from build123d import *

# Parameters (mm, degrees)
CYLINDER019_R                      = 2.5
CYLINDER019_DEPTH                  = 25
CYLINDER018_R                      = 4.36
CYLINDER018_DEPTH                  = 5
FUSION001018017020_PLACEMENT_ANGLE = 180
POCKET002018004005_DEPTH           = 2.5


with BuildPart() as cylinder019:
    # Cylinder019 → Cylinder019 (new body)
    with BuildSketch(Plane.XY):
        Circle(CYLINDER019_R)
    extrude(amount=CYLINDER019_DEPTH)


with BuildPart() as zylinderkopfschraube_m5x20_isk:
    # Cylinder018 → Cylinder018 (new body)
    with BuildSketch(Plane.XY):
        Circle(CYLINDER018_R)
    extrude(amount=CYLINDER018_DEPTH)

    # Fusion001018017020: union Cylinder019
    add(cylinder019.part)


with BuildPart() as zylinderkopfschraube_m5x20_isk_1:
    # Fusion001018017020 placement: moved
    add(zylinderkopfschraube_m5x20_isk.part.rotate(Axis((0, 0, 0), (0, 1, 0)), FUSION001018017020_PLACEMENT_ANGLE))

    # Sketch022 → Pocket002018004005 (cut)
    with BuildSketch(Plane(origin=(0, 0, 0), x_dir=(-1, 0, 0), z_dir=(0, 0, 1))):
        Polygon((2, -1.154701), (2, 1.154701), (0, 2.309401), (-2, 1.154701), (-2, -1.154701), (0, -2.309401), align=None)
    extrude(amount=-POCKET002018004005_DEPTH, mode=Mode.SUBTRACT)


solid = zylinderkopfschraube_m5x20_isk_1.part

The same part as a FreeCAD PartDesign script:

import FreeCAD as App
import Part
import Sketcher

V = App.Vector
Q = App.Units.Quantity


def add_polygon(sketch, points):
    """Adds a closed chain of lines whose ends are joined by coincident constraints."""
    first, n = sketch.GeometryCount, len(points)
    for a, b in zip(points, points[1:] + points[:1]):
        sketch.addGeometry(Part.LineSegment(App.Vector(*a, 0), App.Vector(*b, 0)), False)
    for i in range(n):
        sketch.addConstraint(Sketcher.Constraint("Coincident", first + i, 2, first + (i + 1) % n, 1))

doc = App.newDocument("Part")
params = doc.addObject("Spreadsheet::Sheet", "Params")
for row, (alias, value) in enumerate([
    ("sketch1_diameter", "5 mm"),
    ("pad1_length", "25 mm"),
    ("sketch2_diameter", "8.72 mm"),
    ("pad2_length", "5 mm"),
    ("pocket1_length", "2.5 mm"),
], start=1):
    params.set(f"A{row}", alias)
    params.set(f"B{row}", "=" + value)
    params.setAlias(f"B{row}", alias)

body = doc.addObject("PartDesign::Body", "Body")

# Sketch on XY plane
sketch1 = body.newObject("Sketcher::SketchObject", "Sketch")
sketch1.AttachmentSupport = (doc.getObject("XY_Plane"), [""])
sketch1.MapMode = "FlatFace"
sketch1.addGeometry(Part.Circle(V(0, 0, 0), V(0, 0, 1), 2.5), False)
sketch1.addConstraint(Sketcher.Constraint("Coincident", 0, 3, -1, 1))
sketch1.addConstraint(Sketcher.Constraint("Diameter", 0, 5.0))
sketch1.setExpression("Constraints[1]", "Params.sketch1_diameter")
pad1 = body.newObject("PartDesign::Pad", "Pad")
pad1.Profile = sketch1
pad1.setExpression("Length", "Params.pad1_length")
body2 = doc.addObject("PartDesign::Body", "Body001")

# Sketch on XY plane
sketch2 = body2.newObject("Sketcher::SketchObject", "Sketch001")
sketch2.AttachmentSupport = (doc.getObject("XY_Plane001"), [""])
sketch2.MapMode = "FlatFace"
sketch2.addGeometry(Part.Circle(V(0, 0, 0), V(0, 0, 1), 4.36), False)
sketch2.addConstraint(Sketcher.Constraint("Coincident", 0, 3, -1, 1))
sketch2.addConstraint(Sketcher.Constraint("Diameter", 0, 8.72))
sketch2.setExpression("Constraints[1]", "Params.sketch2_diameter")
pad2 = body2.newObject("PartDesign::Pad", "Pad001")
pad2.Profile = sketch2
pad2.setExpression("Length", "Params.pad2_length")
doc.recompute()

boolean = body2.newObject("PartDesign::Boolean", "Boolean")
boolean.Type = "Fuse"
boolean.addObjects([body])
body3 = doc.addObject("PartDesign::Body", "Body002")
doc.recompute()

body2.Placement = App.Placement(V(0, 0, 0), App.Rotation(V(0, 1, 0), 180))
boolean2 = body3.newObject("PartDesign::Boolean", "Boolean001")
boolean2.Type = "Fuse"
boolean2.addObjects([body2])

# Sketch on XY plane
sketch3 = body3.newObject("Sketcher::SketchObject", "Sketch002")
sketch3.AttachmentSupport = (doc.getObject("XY_Plane002"), [""])
sketch3.MapMode = "FlatFace"
add_polygon(sketch3, [(-2, 1.154701), (-2, -1.154701), (0, -2.309401), (2, -1.154701), (2, 1.154701), (0, 2.309401)])  # lines 0-5
sketch3.addConstraint(Sketcher.Constraint("Vertical", 0))
sketch3.addConstraint(Sketcher.Constraint("Vertical", 3))
sketch3.addConstraint(Sketcher.Constraint("Symmetric", 0, 2, 3, 2, -1, 1))
sketch3.addConstraint(Sketcher.Constraint("Symmetric", 1, 2, 4, 2, -1, 1))
sketch3.addConstraint(Sketcher.Constraint("PointOnObject", 1, 2, -2))
sketch3.addConstraint(Sketcher.Constraint("Parallel", 2, 5))
sketch3.addConstraint(Sketcher.Constraint("Horizontal", 0, 2, 2, 2))
sketch3.addConstraint(Sketcher.Constraint("Angle", 1, Q("-29.999988 deg")))
sketch3.addConstraint(Sketcher.Constraint("DistanceX", 0, 2, -1, 1, 2.0))
sketch3.addConstraint(Sketcher.Constraint("DistanceY", 0, 2, 0, 1, 2.309402))
pocket1 = body3.newObject("PartDesign::Pocket", "Pocket")
pocket1.Profile = sketch3
pocket1.setExpression("Length", "Params.pocket1_length")

doc.recompute()
